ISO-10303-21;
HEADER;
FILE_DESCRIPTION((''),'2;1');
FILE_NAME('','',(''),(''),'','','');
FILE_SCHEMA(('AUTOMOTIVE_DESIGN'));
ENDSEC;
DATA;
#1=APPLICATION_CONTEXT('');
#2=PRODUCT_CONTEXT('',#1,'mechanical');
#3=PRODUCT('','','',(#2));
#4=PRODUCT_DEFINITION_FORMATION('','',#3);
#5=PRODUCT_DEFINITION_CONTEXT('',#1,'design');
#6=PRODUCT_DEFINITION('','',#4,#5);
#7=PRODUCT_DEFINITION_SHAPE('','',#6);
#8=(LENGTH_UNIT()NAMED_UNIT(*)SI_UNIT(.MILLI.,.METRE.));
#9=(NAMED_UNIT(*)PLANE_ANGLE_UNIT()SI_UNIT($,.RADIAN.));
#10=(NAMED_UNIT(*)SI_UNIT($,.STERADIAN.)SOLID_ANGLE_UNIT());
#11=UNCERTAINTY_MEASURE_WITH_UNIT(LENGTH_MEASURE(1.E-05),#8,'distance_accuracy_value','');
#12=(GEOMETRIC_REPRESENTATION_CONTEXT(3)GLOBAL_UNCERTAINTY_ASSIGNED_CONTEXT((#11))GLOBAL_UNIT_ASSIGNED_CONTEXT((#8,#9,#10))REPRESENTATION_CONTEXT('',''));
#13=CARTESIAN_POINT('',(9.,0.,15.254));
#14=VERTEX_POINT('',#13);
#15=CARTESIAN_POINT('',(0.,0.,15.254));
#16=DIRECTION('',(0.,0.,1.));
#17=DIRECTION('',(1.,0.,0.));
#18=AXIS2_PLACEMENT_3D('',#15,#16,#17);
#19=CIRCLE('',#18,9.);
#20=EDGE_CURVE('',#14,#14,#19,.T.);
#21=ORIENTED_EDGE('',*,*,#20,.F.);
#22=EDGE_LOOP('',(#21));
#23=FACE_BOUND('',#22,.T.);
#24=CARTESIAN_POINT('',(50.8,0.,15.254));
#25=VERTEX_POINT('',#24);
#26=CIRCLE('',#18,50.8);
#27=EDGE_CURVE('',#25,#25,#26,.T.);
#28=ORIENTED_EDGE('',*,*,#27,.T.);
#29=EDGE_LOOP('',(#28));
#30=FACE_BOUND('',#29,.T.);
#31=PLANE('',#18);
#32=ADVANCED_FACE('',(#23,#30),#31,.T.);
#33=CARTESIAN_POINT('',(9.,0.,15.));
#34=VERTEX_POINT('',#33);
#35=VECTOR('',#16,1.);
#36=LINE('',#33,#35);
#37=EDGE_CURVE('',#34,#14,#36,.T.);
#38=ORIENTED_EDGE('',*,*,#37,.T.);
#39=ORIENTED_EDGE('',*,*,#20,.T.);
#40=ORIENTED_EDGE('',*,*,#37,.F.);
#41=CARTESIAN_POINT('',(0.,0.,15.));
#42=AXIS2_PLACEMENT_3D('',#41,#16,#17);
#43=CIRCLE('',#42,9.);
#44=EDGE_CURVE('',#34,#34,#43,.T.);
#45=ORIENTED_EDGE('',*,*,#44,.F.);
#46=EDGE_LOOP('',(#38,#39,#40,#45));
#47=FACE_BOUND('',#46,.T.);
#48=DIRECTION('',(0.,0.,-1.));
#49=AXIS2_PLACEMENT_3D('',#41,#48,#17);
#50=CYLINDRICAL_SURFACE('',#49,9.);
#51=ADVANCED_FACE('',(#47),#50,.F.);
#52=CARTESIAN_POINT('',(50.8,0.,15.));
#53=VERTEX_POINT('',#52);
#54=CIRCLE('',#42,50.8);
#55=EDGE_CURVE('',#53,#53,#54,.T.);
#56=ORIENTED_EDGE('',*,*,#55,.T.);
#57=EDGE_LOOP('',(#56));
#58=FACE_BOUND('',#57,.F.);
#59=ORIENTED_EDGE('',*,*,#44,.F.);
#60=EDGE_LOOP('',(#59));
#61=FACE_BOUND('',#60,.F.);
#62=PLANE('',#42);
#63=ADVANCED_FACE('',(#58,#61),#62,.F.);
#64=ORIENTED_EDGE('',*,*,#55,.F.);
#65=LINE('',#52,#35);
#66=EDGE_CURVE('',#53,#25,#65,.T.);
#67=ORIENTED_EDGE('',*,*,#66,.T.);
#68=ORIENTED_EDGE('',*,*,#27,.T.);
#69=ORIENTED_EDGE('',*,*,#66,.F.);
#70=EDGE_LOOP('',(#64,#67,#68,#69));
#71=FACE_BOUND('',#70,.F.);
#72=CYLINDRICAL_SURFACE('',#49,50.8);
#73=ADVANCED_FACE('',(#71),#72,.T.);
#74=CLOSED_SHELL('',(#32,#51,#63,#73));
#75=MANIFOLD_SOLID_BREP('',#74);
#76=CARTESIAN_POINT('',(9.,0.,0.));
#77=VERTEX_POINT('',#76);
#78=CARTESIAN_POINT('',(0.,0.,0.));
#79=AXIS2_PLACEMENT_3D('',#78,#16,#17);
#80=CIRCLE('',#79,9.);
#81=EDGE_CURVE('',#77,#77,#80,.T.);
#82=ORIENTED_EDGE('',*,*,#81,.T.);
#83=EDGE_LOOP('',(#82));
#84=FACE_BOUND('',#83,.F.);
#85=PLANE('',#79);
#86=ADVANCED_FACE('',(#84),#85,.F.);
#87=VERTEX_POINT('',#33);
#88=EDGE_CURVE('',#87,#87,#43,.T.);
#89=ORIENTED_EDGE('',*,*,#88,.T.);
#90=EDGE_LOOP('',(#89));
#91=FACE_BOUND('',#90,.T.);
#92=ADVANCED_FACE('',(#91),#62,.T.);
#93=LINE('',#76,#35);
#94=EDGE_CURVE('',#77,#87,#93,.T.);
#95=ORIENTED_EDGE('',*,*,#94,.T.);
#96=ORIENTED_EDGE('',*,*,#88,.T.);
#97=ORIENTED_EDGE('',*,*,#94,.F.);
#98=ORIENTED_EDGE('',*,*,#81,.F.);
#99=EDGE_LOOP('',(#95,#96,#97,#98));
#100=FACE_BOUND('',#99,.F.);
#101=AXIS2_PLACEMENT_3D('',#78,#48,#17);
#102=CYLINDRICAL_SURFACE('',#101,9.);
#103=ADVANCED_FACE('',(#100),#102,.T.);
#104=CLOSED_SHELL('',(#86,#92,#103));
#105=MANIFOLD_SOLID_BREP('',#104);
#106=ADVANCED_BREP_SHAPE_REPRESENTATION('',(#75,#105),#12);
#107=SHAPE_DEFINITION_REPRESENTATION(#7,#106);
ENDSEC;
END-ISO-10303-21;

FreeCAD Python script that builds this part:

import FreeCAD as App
import Part
import Sketcher

V = App.Vector

doc = App.newDocument("Part")
body = doc.addObject("PartDesign::Body", "Body")

# Sketch on XY plane
sketch1 = body.newObject("Sketcher::SketchObject", "Sketch")
sketch1.AttachmentSupport = (doc.getObject("XY_Plane"), [""])
sketch1.MapMode = "FlatFace"
sketch1.addGeometry(Part.Circle(V(0, 0, 0), V(0, 0, 1), 9), False)
sketch1.addConstraint([
    Sketcher.Constraint("Coincident", 0, 3, -1, 1),
    Sketcher.Constraint("Diameter", 0, 18.0),
])
pad1 = body.newObject("PartDesign::Pad", "Pad")
pad1.Profile = sketch1
pad1.Length = 15
body2 = doc.addObject("PartDesign::Body", "Body001")

# Sketch on XY plane
sketch2 = body2.newObject("Sketcher::SketchObject", "Sketch001")
sketch2.AttachmentSupport = (doc.getObject("XY_Plane001"), [""])
sketch2.MapMode = "FlatFace"
sketch2.AttachmentOffset = App.Placement(V(0, 0, 15), App.Rotation())
sketch2.addGeometry([
    Part.Circle(V(0, 0, 0), V(0, 0, 1), 51),
    Part.Circle(V(0, 0, 0), V(0, 0, 1), 9),
], False)
sketch2.addConstraint([
    Sketcher.Constraint("Coincident", 0, 3, -1, 1),
    Sketcher.Constraint("Coincident", 1, 3, -1, 1),
    Sketcher.Constraint("Diameter", 1, 18.0),
    Sketcher.Constraint("Diameter", 0, 101.6),
])
pad2 = body2.newObject("PartDesign::Pad", "Pad001")
pad2.Profile = sketch2
pad2.Length = 0.254

doc.recompute()
